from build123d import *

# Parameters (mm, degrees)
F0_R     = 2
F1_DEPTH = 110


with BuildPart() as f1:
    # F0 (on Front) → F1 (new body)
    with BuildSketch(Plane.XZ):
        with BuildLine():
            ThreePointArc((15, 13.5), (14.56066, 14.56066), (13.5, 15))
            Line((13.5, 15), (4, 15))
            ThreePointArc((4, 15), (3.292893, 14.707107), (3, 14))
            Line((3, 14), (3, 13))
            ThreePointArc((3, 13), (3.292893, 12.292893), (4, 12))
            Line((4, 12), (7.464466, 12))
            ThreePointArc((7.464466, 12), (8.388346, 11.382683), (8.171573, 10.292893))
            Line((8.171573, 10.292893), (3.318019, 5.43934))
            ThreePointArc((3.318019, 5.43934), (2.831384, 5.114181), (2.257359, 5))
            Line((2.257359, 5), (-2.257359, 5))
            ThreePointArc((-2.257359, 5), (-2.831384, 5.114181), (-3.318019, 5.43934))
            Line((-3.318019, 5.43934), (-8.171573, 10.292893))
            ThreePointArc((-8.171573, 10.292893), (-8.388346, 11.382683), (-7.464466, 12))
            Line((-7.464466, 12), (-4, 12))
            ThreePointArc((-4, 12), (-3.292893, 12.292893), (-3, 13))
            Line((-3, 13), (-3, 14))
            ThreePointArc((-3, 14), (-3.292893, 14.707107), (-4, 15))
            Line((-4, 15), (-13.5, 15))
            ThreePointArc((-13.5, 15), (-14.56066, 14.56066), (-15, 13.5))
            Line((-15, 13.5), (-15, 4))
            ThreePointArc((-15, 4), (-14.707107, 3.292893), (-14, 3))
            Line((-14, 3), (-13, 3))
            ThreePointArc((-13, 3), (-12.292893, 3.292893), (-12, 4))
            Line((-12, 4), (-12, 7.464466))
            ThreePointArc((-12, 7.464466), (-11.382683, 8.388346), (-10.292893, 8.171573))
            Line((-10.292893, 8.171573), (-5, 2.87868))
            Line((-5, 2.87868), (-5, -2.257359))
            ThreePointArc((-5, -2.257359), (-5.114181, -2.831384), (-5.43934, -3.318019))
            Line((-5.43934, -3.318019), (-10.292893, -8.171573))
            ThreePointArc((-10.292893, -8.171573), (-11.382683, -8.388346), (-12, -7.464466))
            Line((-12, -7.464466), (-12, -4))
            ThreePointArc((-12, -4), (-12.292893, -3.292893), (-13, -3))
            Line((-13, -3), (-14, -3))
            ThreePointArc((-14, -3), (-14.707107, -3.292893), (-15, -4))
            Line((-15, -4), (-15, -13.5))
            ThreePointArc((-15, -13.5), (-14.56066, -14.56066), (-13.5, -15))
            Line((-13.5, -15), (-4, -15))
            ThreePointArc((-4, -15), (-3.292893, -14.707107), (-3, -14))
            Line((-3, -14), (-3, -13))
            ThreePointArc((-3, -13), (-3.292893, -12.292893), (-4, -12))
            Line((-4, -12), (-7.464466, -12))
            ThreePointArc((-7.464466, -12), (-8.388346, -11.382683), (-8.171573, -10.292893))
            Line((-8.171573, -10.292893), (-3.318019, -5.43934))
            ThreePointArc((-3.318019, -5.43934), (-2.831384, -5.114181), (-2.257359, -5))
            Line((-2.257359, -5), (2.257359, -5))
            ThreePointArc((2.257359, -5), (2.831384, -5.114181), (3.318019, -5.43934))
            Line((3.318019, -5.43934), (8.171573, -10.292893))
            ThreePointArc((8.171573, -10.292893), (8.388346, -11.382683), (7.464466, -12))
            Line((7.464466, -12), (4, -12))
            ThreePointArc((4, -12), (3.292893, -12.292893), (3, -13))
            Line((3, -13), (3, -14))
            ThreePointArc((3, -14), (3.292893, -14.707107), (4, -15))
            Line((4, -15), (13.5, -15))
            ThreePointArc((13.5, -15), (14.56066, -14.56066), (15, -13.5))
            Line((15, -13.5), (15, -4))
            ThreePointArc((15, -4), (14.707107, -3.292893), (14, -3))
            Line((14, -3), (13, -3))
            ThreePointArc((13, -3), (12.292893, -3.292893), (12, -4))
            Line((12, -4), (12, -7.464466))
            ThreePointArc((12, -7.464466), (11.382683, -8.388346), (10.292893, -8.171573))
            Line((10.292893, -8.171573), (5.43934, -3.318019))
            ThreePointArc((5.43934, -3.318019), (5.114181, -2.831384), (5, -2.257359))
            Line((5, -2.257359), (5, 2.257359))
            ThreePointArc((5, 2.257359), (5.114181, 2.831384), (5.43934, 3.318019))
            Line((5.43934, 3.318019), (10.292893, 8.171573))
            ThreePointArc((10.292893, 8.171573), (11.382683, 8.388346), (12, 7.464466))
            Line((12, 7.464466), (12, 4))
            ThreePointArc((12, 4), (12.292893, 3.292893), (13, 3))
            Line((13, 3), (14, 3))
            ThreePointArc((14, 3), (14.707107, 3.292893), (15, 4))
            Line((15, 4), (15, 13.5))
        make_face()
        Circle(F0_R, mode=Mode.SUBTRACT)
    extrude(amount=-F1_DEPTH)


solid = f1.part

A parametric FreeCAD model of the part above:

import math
import FreeCAD as App
import Part
import Sketcher
Q = App.Units.Quantity

doc = App.newDocument("Part")
params = doc.addObject("Spreadsheet::Sheet", "Params")
for row, (alias, value) in enumerate([
    ("sketch1_diameter", "4 mm"),
    ("sketch1_radius", "0.999999 mm"),
    ("sketch1_radius2", "1.500001 mm"),
    ("sketch1_width", "1 mm"),
    ("sketch1_width2", "9.5 mm"),
    ("pad1_length", "110 mm"),
], start=1):
    params.set(f"A{row}", alias)
    params.set(f"B{row}", "=" + value)
    params.setAlias(f"B{row}", alias)

body = doc.addObject("PartDesign::Body", "Body")

# Sketch on XZ plane
sketch1 = body.newObject("Sketcher::SketchObject", "Sketch")
sketch1.AttachmentSupport = (doc.getObject("XZ_Plane"), [""])
sketch1.MapMode = "FlatFace"
sketch1.addGeometry([
    Part.ArcOfCircle(Part.Circle(App.Vector(13.5, 13.5, 0), App.Vector(0, 0, 1), 1.5), math.radians(0), math.radians(90)),  # 0
    Part.LineSegment(App.Vector(13.5, 15, 0), App.Vector(4, 15, 0)),  # 1
    Part.ArcOfCircle(Part.Circle(App.Vector(4, 14, 0), App.Vector(0, 0, 1), 1), math.radians(90), math.radians(180)),  # 2
    Part.LineSegment(App.Vector(3, 14, 0), App.Vector(3, 13, 0)),  # 3
    Part.ArcOfCircle(Part.Circle(App.Vector(4, 13, 0), App.Vector(0, 0, 1), 1), math.radians(180), math.radians(270)),  # 4
    Part.LineSegment(App.Vector(4, 12, 0), App.Vector(7.5, 12, 0)),  # 5
    Part.ArcOfCircle(Part.Circle(App.Vector(7.5, 11, 0), App.Vector(0, 0, 1), 1), math.radians(-45), math.radians(90)),  # 6
    Part.LineSegment(App.Vector(8.2, 10.3, 0), App.Vector(3.3, 5.4, 0)),  # 7
    Part.ArcOfCircle(Part.Circle(App.Vector(2.3, 6.5, 0), App.Vector(0, 0, 1), 1.5), math.radians(-90), math.radians(-45)),  # 8
    Part.LineSegment(App.Vector(2.3, 5, 0), App.Vector(-2.3, 5, 0)),  # 9
    Part.ArcOfCircle(Part.Circle(App.Vector(-2.3, 6.5, 0), App.Vector(0, 0, 1), 1.5), math.radians(-135), math.radians(-90)),  # 10
    Part.LineSegment(App.Vector(-3.3, 5.4, 0), App.Vector(-8.2, 10.3, 0)),  # 11
    Part.ArcOfCircle(Part.Circle(App.Vector(-7.5, 11, 0), App.Vector(0, 0, 1), 1), math.radians(90), math.radians(225)),  # 12
    Part.LineSegment(App.Vector(-7.5, 12, 0), App.Vector(-4, 12, 0)),  # 13
    Part.ArcOfCircle(Part.Circle(App.Vector(-4, 13, 0), App.Vector(0, 0, 1), 1), math.radians(-90), math.radians(0)),  # 14
    Part.LineSegment(App.Vector(-3, 13, 0), App.Vector(-3, 14, 0)),  # 15
    Part.ArcOfCircle(Part.Circle(App.Vector(-4, 14, 0), App.Vector(0, 0, 1), 1), math.radians(0), math.radians(90)),  # 16
    Part.LineSegment(App.Vector(-4, 15, 0), App.Vector(-13.5, 15, 0)),  # 17
    Part.ArcOfCircle(Part.Circle(App.Vector(-13.5, 13.5, 0), App.Vector(0, 0, 1), 1.5), math.radians(90), math.radians(180)),  # 18
    Part.LineSegment(App.Vector(-15, 13.5, 0), App.Vector(-15, 4, 0)),  # 19
    Part.ArcOfCircle(Part.Circle(App.Vector(-14, 4, 0), App.Vector(0, 0, 1), 1), math.radians(180), math.radians(270)),  # 20
    Part.LineSegment(App.Vector(-14, 3, 0), App.Vector(-13, 3, 0)),  # 21
    Part.ArcOfCircle(Part.Circle(App.Vector(-13, 4, 0), App.Vector(0, 0, 1), 1), math.radians(-90), math.radians(0)),  # 22
    Part.LineSegment(App.Vector(-12, 4, 0), App.Vector(-12, 7.5, 0)),  # 23
    Part.ArcOfCircle(Part.Circle(App.Vector(-11, 7.5, 0), App.Vector(0, 0, 1), 1), math.radians(45), math.radians(180)),  # 24
    Part.LineSegment(App.Vector(-10.3, 8.2, 0), App.Vector(-5, 2.9, 0)),  # 25
    Part.LineSegment(App.Vector(-5, 2.9, 0), App.Vector(-5, -2.3, 0)),  # 26
    Part.ArcOfCircle(Part.Circle(App.Vector(-6.5, -2.3, 0), App.Vector(0, 0, 1), 1.5), math.radians(-45), math.radians(0)),  # 27
    Part.LineSegment(App.Vector(-5.4, -3.3, 0), App.Vector(-10.3, -8.2, 0)),  # 28
    Part.ArcOfCircle(Part.Circle(App.Vector(-11, -7.5, 0), App.Vector(0, 0, 1), 1), math.radians(180), math.radians(315)),  # 29
    Part.LineSegment(App.Vector(-12, -7.5, 0), App.Vector(-12, -4, 0)),  # 30
    Part.ArcOfCircle(Part.Circle(App.Vector(-13, -4, 0), App.Vector(0, 0, 1), 1), math.radians(0), math.radians(90)),  # 31
    Part.LineSegment(App.Vector(-13, -3, 0), App.Vector(-14, -3, 0)),  # 32
    Part.ArcOfCircle(Part.Circle(App.Vector(-14, -4, 0), App.Vector(0, 0, 1), 1), math.radians(90), math.radians(180)),  # 33
    Part.LineSegment(App.Vector(-15, -4, 0), App.Vector(-15, -13.5, 0)),  # 34
    Part.ArcOfCircle(Part.Circle(App.Vector(-13.5, -13.5, 0), App.Vector(0, 0, 1), 1.5), math.radians(-180), math.radians(-90)),  # 35
    Part.LineSegment(App.Vector(-13.5, -15, 0), App.Vector(-4, -15, 0)),  # 36
    Part.ArcOfCircle(Part.Circle(App.Vector(-4, -14, 0), App.Vector(0, 0, 1), 1), math.radians(-90), math.radians(0)),  # 37
    Part.LineSegment(App.Vector(-3, -14, 0), App.Vector(-3, -13, 0)),  # 38
    Part.ArcOfCircle(Part.Circle(App.Vector(-4, -13, 0), App.Vector(0, 0, 1), 1), math.radians(0), math.radians(90)),  # 39
    Part.LineSegment(App.Vector(-4, -12, 0), App.Vector(-7.5, -12, 0)),  # 40
    Part.ArcOfCircle(Part.Circle(App.Vector(-7.5, -11, 0), App.Vector(0, 0, 1), 1), math.radians(135), math.radians(270)),  # 41
    Part.LineSegment(App.Vector(-8.2, -10.3, 0), App.Vector(-3.3, -5.4, 0)),  # 42
    Part.ArcOfCircle(Part.Circle(App.Vector(-2.3, -6.5, 0), App.Vector(0, 0, 1), 1.5), math.radians(90), math.radians(135)),  # 43
    Part.LineSegment(App.Vector(-2.3, -5, 0), App.Vector(2.3, -5, 0)),  # 44
    Part.ArcOfCircle(Part.Circle(App.Vector(2.3, -6.5, 0), App.Vector(0, 0, 1), 1.5), math.radians(45), math.radians(90)),  # 45
    Part.LineSegment(App.Vector(3.3, -5.4, 0), App.Vector(8.2, -10.3, 0)),  # 46
    Part.ArcOfCircle(Part.Circle(App.Vector(7.5, -11, 0), App.Vector(0, 0, 1), 1), math.radians(-90), math.radians(45)),  # 47
    Part.LineSegment(App.Vector(7.5, -12, 0), App.Vector(4, -12, 0)),  # 48
    Part.ArcOfCircle(Part.Circle(App.Vector(4, -13, 0), App.Vector(0, 0, 1), 1), math.radians(90), math.radians(180)),  # 49
    Part.LineSegment(App.Vector(3, -13, 0), App.Vector(3, -14, 0)),  # 50
    Part.ArcOfCircle(Part.Circle(App.Vector(4, -14, 0), App.Vector(0, 0, 1), 1), math.radians(180), math.radians(270)),  # 51
    Part.LineSegment(App.Vector(4, -15, 0), App.Vector(13.5, -15, 0)),  # 52
    Part.ArcOfCircle(Part.Circle(App.Vector(13.5, -13.5, 0), App.Vector(0, 0, 1), 1.5), math.radians(-90), math.radians(0)),  # 53
    Part.LineSegment(App.Vector(15, -13.5, 0), App.Vector(15, -4, 0)),  # 54
    Part.ArcOfCircle(Part.Circle(App.Vector(14, -4, 0), App.Vector(0, 0, 1), 1), math.radians(0), math.radians(90)),  # 55
    Part.LineSegment(App.Vector(14, -3, 0), App.Vector(13, -3, 0)),  # 56
    Part.ArcOfCircle(Part.Circle(App.Vector(13, -4, 0), App.Vector(0, 0, 1), 1), math.radians(90), math.radians(180)),  # 57
    Part.LineSegment(App.Vector(12, -4, 0), App.Vector(12, -7.5, 0)),  # 58
    Part.ArcOfCircle(Part.Circle(App.Vector(11, -7.5, 0), App.Vector(0, 0, 1), 1), math.radians(-135), math.radians(0)),  # 59
    Part.LineSegment(App.Vector(10.3, -8.2, 0), App.Vector(5.4, -3.3, 0)),  # 60
    Part.ArcOfCircle(Part.Circle(App.Vector(6.5, -2.3, 0), App.Vector(0, 0, 1), 1.5), math.radians(-180), math.radians(-135)),  # 61
    Part.LineSegment(App.Vector(5, -2.3, 0), App.Vector(5, 2.3, 0)),  # 62
    Part.ArcOfCircle(Part.Circle(App.Vector(6.5, 2.3, 0), App.Vector(0, 0, 1), 1.5), math.radians(135), math.radians(180)),  # 63
    Part.LineSegment(App.Vector(5.4, 3.3, 0), App.Vector(10.3, 8.2, 0)),  # 64
    Part.ArcOfCircle(Part.Circle(App.Vector(11, 7.5, 0), App.Vector(0, 0, 1), 1), math.radians(0), math.radians(135)),  # 65
    Part.LineSegment(App.Vector(12, 7.5, 0), App.Vector(12, 4, 0)),  # 66
    Part.ArcOfCircle(Part.Circle(App.Vector(13, 4, 0), App.Vector(0, 0, 1), 1), math.radians(180), math.radians(270)),  # 67
    Part.LineSegment(App.Vector(13, 3, 0), App.Vector(14, 3, 0)),  # 68
    Part.ArcOfCircle(Part.Circle(App.Vector(14, 4, 0), App.Vector(0, 0, 1), 1), math.radians(-90), math.radians(0)),  # 69
    Part.LineSegment(App.Vector(15, 4, 0), App.Vector(15, 13.5, 0)),  # 70
    Part.Circle(App.Vector(0, 0, 0), App.Vector(0, 0, 1), 2),  # 71
], False)
sketch1.addConstraint([
    Sketcher.Constraint("Tangent", 0, 2, 1, 1),
    Sketcher.Constraint("Tangent", 1, 2, 2, 1),
    Sketcher.Constraint("Tangent", 2, 2, 3, 1),
    Sketcher.Constraint("Tangent", 3, 2, 4, 1),
    Sketcher.Constraint("Tangent", 4, 2, 5, 1),
    Sketcher.Constraint("Tangent", 5, 2, 6, 2),
    Sketcher.Constraint("Tangent", 6, 1, 7, 1),
    Sketcher.Constraint("Tangent", 7, 2, 8, 2),
    Sketcher.Constraint("Tangent", 8, 1, 9, 1),
    Sketcher.Constraint("Tangent", 9, 2, 10, 2),
    Sketcher.Constraint("Tangent", 10, 1, 11, 1),
    Sketcher.Constraint("Tangent", 11, 2, 12, 2),
    Sketcher.Constraint("Tangent", 12, 1, 13, 1),
    Sketcher.Constraint("Tangent", 13, 2, 14, 1),
    Sketcher.Constraint("Tangent", 14, 2, 15, 1),
    Sketcher.Constraint("Tangent", 15, 2, 16, 1),
    Sketcher.Constraint("Tangent", 16, 2, 17, 1),
    Sketcher.Constraint("Tangent", 17, 2, 18, 1),
    Sketcher.Constraint("Tangent", 18, 2, 19, 1),
    Sketcher.Constraint("Tangent", 19, 2, 20, 1),
    Sketcher.Constraint("Tangent", 20, 2, 21, 1),
    Sketcher.Constraint("Tangent", 21, 2, 22, 1),
    Sketcher.Constraint("Tangent", 22, 2, 23, 1),
    Sketcher.Constraint("Tangent", 23, 2, 24, 2),
    Sketcher.Constraint("Tangent", 24, 1, 25, 1),
    Sketcher.Constraint("Coincident", 25, 2, 26, 1),
    Sketcher.Constraint("Tangent", 26, 2, 27, 2),
    Sketcher.Constraint("Tangent", 27, 1, 28, 1),
    Sketcher.Constraint("Tangent", 28, 2, 29, 2),
    Sketcher.Constraint("Tangent", 29, 1, 30, 1),
    Sketcher.Constraint("Tangent", 30, 2, 31, 1),
    Sketcher.Constraint("Tangent", 31, 2, 32, 1),
    Sketcher.Constraint("Tangent", 32, 2, 33, 1),
    Sketcher.Constraint("Tangent", 33, 2, 34, 1),
    Sketcher.Constraint("Tangent", 34, 2, 35, 1),
    Sketcher.Constraint("Tangent", 35, 2, 36, 1),
    Sketcher.Constraint("Tangent", 36, 2, 37, 1),
    Sketcher.Constraint("Tangent", 37, 2, 38, 1),
    Sketcher.Constraint("Tangent", 38, 2, 39, 1),
    Sketcher.Constraint("Tangent", 39, 2, 40, 1),
    Sketcher.Constraint("Tangent", 40, 2, 41, 2),
    Sketcher.Constraint("Tangent", 41, 1, 42, 1),
    Sketcher.Constraint("Tangent", 42, 2, 43, 2),
    Sketcher.Constraint("Tangent", 43, 1, 44, 1),
    Sketcher.Constraint("Tangent", 44, 2, 45, 2),
    Sketcher.Constraint("Tangent", 45, 1, 46, 1),
    Sketcher.Constraint("Tangent", 46, 2, 47, 2),
    Sketcher.Constraint("Tangent", 47, 1, 48, 1),
    Sketcher.Constraint("Tangent", 48, 2, 49, 1),
    Sketcher.Constraint("Tangent", 49, 2, 50, 1),
    Sketcher.Constraint("Tangent", 50, 2, 51, 1),
    Sketcher.Constraint("Tangent", 51, 2, 52, 1),
    Sketcher.Constraint("Tangent", 52, 2, 53, 1),
    Sketcher.Constraint("Tangent", 53, 2, 54, 1),
    Sketcher.Constraint("Tangent", 54, 2, 55, 1),
    Sketcher.Constraint("Tangent", 55, 2, 56, 1),
    Sketcher.Constraint("Tangent", 56, 2, 57, 1),
    Sketcher.Constraint("Tangent", 57, 2, 58, 1),
    Sketcher.Constraint("Tangent", 58, 2, 59, 2),
    Sketcher.Constraint("Tangent", 59, 1, 60, 1),
    Sketcher.Constraint("Tangent", 60, 2, 61, 2),
    Sketcher.Constraint("Tangent", 61, 1, 62, 1),
    Sketcher.Constraint("Tangent", 62, 2, 63, 2),
    Sketcher.Constraint("Tangent", 63, 1, 64, 1),
    Sketcher.Constraint("Tangent", 64, 2, 65, 2),
    Sketcher.Constraint("Tangent", 65, 1, 66, 1),
    Sketcher.Constraint("Tangent", 66, 2, 67, 1),
    Sketcher.Constraint("Tangent", 67, 2, 68, 1),
    Sketcher.Constraint("Tangent", 68, 2, 69, 1),
    Sketcher.Constraint("Tangent", 69, 2, 70, 1),
    Sketcher.Constraint("Tangent", 70, 2, 0, 1),
    Sketcher.Constraint("Horizontal", 1),
    Sketcher.Constraint("Vertical", 3),
    Sketcher.Constraint("Horizontal", 5),
    Sketcher.Constraint("Horizontal", 9),
    Sketcher.Constraint("Horizontal", 13),
    Sketcher.Constraint("Vertical", 15),
    Sketcher.Constraint("Horizontal", 17),
    Sketcher.Constraint("Vertical", 19),
    Sketcher.Constraint("Horizontal", 21),
    Sketcher.Constraint("Vertical", 23),
    Sketcher.Constraint("Vertical", 26),
    Sketcher.Constraint("Vertical", 30),
    Sketcher.Constraint("Horizontal", 32),
    Sketcher.Constraint("Vertical", 34),
    Sketcher.Constraint("Horizontal", 36),
    Sketcher.Constraint("Vertical", 38),
    Sketcher.Constraint("Horizontal", 40),
    Sketcher.Constraint("Horizontal", 44),
    Sketcher.Constraint("Horizontal", 48),
    Sketcher.Constraint("Vertical", 50),
    Sketcher.Constraint("Horizontal", 52),
    Sketcher.Constraint("Vertical", 54),
    Sketcher.Constraint("Horizontal", 56),
    Sketcher.Constraint("Vertical", 58),
    Sketcher.Constraint("Vertical", 62),
    Sketcher.Constraint("Vertical", 66),
    Sketcher.Constraint("Horizontal", 68),
    Sketcher.Constraint("Vertical", 70),
    Sketcher.Constraint("Coincident", 71, 3, -1, 1),
    Sketcher.Constraint("Equal", 2, 4),
    Sketcher.Constraint("Equal", 4, 6),
    Sketcher.Constraint("Equal", 0, 8),
    Sketcher.Constraint("Equal", 8, 10),
    Sketcher.Constraint("Equal", 6, 12),
    Sketcher.Constraint("Equal", 12, 14),
    Sketcher.Constraint("Equal", 14, 16),
    Sketcher.Constraint("Equal", 10, 18),
    Sketcher.Constraint("Equal", 16, 20),
    Sketcher.Constraint("Equal", 20, 22),
    Sketcher.Constraint("Equal", 22, 24),
    Sketcher.Constraint("Equal", 18, 27),
    Sketcher.Constraint("Equal", 24, 29),
    Sketcher.Constraint("Equal", 29, 31),
    Sketcher.Constraint("Equal", 31, 33),
    Sketcher.Constraint("Equal", 27, 35),
    Sketcher.Constraint("Equal", 33, 37),
    Sketcher.Constraint("Equal", 37, 39),
    Sketcher.Constraint("Equal", 39, 41),
    Sketcher.Constraint("Equal", 35, 43),
    Sketcher.Constraint("Equal", 43, 45),
    Sketcher.Constraint("Equal", 41, 47),
    Sketcher.Constraint("Equal", 47, 49),
    Sketcher.Constraint("Equal", 49, 51),
    Sketcher.Constraint("Equal", 45, 53),
    Sketcher.Constraint("Equal", 51, 55),
    Sketcher.Constraint("Equal", 55, 57),
    Sketcher.Constraint("Equal", 57, 59),
    Sketcher.Constraint("Equal", 53, 61),
    Sketcher.Constraint("Equal", 61, 63),
    Sketcher.Constraint("Equal", 59, 65),
    Sketcher.Constraint("Equal", 65, 67),
    Sketcher.Constraint("Equal", 67, 69),
    Sketcher.Constraint("Symmetric", 0, 3, 35, 3, -1, 1),
    Sketcher.Constraint("Symmetric", 4, 3, 39, 3, -1, 1),
    Sketcher.Constraint("Symmetric", 8, 3, 43, 3, -1, 1),
    Sketcher.Constraint("Symmetric", 12, 3, 47, 3, -1, 1),
    Sketcher.Constraint("Symmetric", 16, 3, 51, 3, -1, 1),
    Sketcher.Constraint("Symmetric", 20, 3, 55, 3, -1, 1),
    Sketcher.Constraint("Symmetric", 24, 3, 59, 3, -1, 1),
    Sketcher.Constraint("Symmetric", 27, 3, 63, 3, -1, 1),
    Sketcher.Constraint("Symmetric", 29, 3, 65, 3, -1, 1),
    Sketcher.Constraint("Symmetric", 6, 3, 12, 3, -2),
    Sketcher.Constraint("Symmetric", 2, 3, 16, 3, -2),
    Sketcher.Constraint("Symmetric", 33, 3, 55, 3, -2),
    Sketcher.Constraint("Symmetric", 29, 3, 59, 3, -2),
    Sketcher.Constraint("Symmetric", 42, 2, 45, 1, -2),
    Sketcher.Constraint("Perpendicular", 7, 11),
    Sketcher.Constraint("Parallel", 11, 25),
    Sketcher.Constraint("Perpendicular", 25, 28),
    Sketcher.Constraint("Perpendicular", 42, 46),
    Sketcher.Constraint("Parallel", 46, 60),
    Sketcher.Constraint("Horizontal", 22, 3, 67, 3),
    Sketcher.Constraint("Equal", 68, 3),
    Sketcher.Constraint("Equal", 52, 19),
    Sketcher.Constraint("Equal", 48, 23),
    Sketcher.Constraint("Equal", 44, 62),
    Sketcher.Constraint("Equal", 11, 28),
    Sketcher.Constraint("Diameter", 71, Q("4 mm")),
    Sketcher.Constraint("Radius", 2, Q("0.999999 mm")),
    Sketcher.Constraint("Radius", 0, Q("1.500001 mm")),
    Sketcher.Constraint("DistanceX", 21, 1, 21, 2, Q("1 mm")),
    Sketcher.Constraint("DistanceX", 1, 2, 1, 1, Q("9.5 mm")),
    Sketcher.Constraint("DistanceX", -1, 1, 2, 3, Q("3.999999 mm")),
    Sketcher.Constraint("DistanceY", -1, 1, 8, 1, Q("5 mm")),
    Sketcher.Constraint("DistanceX", 9, 2, 9, 1, Q("4.514718 mm")),
])
sketch1.setExpression("Constraints[158]", "Params.sketch1_diameter")
sketch1.setExpression("Constraints[159]", "Params.sketch1_radius")
sketch1.setExpression("Constraints[160]", "Params.sketch1_radius2")
sketch1.setExpression("Constraints[161]", "Params.sketch1_width")
sketch1.setExpression("Constraints[162]", "Params.sketch1_width2")
pad1 = body.newObject("PartDesign::Pad", "Pad")
pad1.Profile = sketch1
pad1.setExpression("Length", "Params.pad1_length")
pad1.Reversed = True

doc.recompute()
